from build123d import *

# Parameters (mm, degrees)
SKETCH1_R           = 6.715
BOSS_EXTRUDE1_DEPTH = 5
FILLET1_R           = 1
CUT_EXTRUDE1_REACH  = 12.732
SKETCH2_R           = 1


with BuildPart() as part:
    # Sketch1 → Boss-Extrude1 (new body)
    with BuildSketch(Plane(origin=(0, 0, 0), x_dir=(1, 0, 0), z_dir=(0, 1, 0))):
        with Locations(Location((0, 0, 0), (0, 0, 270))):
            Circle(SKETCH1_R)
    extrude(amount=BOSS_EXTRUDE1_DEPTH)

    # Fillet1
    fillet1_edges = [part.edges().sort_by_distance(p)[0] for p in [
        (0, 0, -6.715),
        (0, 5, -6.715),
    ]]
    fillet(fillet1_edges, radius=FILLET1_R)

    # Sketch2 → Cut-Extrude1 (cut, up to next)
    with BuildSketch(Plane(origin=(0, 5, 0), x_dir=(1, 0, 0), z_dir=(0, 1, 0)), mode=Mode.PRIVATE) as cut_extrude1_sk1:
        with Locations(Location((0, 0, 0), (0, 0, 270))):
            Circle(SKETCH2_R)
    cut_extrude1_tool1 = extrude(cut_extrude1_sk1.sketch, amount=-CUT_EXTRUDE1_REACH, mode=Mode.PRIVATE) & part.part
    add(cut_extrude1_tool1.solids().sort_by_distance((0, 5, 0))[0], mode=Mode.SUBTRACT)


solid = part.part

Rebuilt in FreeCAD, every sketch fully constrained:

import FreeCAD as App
import Part
import Sketcher
Q = App.Units.Quantity


def edges_at(feature, points):
    """Names of the edges that pass closest to the given points."""
    edges = feature.Shape.Edges
    near = lambda p: min(range(len(edges)), key=lambda i: edges[i].distToShape(Part.Vertex(*p))[0])
    return sorted({f"Edge{near(p) + 1}" for p in points})

doc = App.newDocument("Part")
body = doc.addObject("PartDesign::Body", "Body")

# Sketch on XZ plane
sketch1 = body.newObject("Sketcher::SketchObject", "Sketch")
sketch1.AttachmentSupport = (doc.getObject("XZ_Plane"), [""])
sketch1.MapMode = "FlatFace"
sketch1.addGeometry(Part.Circle(App.Vector(0, 0, 0), App.Vector(0, 0, 1), 7), False)
sketch1.addConstraint([
    Sketcher.Constraint("Coincident", 0, 3, -1, 1),
    Sketcher.Constraint("Diameter", 0, Q("13.43 mm")),
])
pad1 = body.newObject("PartDesign::Pad", "Pad")
pad1.Profile = sketch1
pad1.Length = 5
pad1.Reversed = True
doc.recompute()

fillet = body.newObject("PartDesign::Fillet", "Fillet")
fillet.Base = (pad1, edges_at(pad1, [(0, 0, -6.715), (0, 5, -6.715)]))
fillet.Radius = 1

# Sketch on XZ plane
sketch2 = body.newObject("Sketcher::SketchObject", "Sketch001")
sketch2.AttachmentSupport = (doc.getObject("XZ_Plane"), [""])
sketch2.MapMode = "FlatFace"
sketch2.AttachmentOffset = App.Placement(App.Vector(0, 0, -5), App.Rotation())
sketch2.addGeometry(Part.Circle(App.Vector(0, 0, 0), App.Vector(0, 0, 1), 1), False)
sketch2.addConstraint([
    Sketcher.Constraint("Coincident", 0, 3, -1, 1),
    Sketcher.Constraint("Diameter", 0, Q("2 mm")),
])
pocket1 = body.newObject("PartDesign::Pocket", "Pocket")
pocket1.Profile = sketch2
pocket1.Type = "UpToFirst"
pocket1.Reversed = True

doc.recompute()
